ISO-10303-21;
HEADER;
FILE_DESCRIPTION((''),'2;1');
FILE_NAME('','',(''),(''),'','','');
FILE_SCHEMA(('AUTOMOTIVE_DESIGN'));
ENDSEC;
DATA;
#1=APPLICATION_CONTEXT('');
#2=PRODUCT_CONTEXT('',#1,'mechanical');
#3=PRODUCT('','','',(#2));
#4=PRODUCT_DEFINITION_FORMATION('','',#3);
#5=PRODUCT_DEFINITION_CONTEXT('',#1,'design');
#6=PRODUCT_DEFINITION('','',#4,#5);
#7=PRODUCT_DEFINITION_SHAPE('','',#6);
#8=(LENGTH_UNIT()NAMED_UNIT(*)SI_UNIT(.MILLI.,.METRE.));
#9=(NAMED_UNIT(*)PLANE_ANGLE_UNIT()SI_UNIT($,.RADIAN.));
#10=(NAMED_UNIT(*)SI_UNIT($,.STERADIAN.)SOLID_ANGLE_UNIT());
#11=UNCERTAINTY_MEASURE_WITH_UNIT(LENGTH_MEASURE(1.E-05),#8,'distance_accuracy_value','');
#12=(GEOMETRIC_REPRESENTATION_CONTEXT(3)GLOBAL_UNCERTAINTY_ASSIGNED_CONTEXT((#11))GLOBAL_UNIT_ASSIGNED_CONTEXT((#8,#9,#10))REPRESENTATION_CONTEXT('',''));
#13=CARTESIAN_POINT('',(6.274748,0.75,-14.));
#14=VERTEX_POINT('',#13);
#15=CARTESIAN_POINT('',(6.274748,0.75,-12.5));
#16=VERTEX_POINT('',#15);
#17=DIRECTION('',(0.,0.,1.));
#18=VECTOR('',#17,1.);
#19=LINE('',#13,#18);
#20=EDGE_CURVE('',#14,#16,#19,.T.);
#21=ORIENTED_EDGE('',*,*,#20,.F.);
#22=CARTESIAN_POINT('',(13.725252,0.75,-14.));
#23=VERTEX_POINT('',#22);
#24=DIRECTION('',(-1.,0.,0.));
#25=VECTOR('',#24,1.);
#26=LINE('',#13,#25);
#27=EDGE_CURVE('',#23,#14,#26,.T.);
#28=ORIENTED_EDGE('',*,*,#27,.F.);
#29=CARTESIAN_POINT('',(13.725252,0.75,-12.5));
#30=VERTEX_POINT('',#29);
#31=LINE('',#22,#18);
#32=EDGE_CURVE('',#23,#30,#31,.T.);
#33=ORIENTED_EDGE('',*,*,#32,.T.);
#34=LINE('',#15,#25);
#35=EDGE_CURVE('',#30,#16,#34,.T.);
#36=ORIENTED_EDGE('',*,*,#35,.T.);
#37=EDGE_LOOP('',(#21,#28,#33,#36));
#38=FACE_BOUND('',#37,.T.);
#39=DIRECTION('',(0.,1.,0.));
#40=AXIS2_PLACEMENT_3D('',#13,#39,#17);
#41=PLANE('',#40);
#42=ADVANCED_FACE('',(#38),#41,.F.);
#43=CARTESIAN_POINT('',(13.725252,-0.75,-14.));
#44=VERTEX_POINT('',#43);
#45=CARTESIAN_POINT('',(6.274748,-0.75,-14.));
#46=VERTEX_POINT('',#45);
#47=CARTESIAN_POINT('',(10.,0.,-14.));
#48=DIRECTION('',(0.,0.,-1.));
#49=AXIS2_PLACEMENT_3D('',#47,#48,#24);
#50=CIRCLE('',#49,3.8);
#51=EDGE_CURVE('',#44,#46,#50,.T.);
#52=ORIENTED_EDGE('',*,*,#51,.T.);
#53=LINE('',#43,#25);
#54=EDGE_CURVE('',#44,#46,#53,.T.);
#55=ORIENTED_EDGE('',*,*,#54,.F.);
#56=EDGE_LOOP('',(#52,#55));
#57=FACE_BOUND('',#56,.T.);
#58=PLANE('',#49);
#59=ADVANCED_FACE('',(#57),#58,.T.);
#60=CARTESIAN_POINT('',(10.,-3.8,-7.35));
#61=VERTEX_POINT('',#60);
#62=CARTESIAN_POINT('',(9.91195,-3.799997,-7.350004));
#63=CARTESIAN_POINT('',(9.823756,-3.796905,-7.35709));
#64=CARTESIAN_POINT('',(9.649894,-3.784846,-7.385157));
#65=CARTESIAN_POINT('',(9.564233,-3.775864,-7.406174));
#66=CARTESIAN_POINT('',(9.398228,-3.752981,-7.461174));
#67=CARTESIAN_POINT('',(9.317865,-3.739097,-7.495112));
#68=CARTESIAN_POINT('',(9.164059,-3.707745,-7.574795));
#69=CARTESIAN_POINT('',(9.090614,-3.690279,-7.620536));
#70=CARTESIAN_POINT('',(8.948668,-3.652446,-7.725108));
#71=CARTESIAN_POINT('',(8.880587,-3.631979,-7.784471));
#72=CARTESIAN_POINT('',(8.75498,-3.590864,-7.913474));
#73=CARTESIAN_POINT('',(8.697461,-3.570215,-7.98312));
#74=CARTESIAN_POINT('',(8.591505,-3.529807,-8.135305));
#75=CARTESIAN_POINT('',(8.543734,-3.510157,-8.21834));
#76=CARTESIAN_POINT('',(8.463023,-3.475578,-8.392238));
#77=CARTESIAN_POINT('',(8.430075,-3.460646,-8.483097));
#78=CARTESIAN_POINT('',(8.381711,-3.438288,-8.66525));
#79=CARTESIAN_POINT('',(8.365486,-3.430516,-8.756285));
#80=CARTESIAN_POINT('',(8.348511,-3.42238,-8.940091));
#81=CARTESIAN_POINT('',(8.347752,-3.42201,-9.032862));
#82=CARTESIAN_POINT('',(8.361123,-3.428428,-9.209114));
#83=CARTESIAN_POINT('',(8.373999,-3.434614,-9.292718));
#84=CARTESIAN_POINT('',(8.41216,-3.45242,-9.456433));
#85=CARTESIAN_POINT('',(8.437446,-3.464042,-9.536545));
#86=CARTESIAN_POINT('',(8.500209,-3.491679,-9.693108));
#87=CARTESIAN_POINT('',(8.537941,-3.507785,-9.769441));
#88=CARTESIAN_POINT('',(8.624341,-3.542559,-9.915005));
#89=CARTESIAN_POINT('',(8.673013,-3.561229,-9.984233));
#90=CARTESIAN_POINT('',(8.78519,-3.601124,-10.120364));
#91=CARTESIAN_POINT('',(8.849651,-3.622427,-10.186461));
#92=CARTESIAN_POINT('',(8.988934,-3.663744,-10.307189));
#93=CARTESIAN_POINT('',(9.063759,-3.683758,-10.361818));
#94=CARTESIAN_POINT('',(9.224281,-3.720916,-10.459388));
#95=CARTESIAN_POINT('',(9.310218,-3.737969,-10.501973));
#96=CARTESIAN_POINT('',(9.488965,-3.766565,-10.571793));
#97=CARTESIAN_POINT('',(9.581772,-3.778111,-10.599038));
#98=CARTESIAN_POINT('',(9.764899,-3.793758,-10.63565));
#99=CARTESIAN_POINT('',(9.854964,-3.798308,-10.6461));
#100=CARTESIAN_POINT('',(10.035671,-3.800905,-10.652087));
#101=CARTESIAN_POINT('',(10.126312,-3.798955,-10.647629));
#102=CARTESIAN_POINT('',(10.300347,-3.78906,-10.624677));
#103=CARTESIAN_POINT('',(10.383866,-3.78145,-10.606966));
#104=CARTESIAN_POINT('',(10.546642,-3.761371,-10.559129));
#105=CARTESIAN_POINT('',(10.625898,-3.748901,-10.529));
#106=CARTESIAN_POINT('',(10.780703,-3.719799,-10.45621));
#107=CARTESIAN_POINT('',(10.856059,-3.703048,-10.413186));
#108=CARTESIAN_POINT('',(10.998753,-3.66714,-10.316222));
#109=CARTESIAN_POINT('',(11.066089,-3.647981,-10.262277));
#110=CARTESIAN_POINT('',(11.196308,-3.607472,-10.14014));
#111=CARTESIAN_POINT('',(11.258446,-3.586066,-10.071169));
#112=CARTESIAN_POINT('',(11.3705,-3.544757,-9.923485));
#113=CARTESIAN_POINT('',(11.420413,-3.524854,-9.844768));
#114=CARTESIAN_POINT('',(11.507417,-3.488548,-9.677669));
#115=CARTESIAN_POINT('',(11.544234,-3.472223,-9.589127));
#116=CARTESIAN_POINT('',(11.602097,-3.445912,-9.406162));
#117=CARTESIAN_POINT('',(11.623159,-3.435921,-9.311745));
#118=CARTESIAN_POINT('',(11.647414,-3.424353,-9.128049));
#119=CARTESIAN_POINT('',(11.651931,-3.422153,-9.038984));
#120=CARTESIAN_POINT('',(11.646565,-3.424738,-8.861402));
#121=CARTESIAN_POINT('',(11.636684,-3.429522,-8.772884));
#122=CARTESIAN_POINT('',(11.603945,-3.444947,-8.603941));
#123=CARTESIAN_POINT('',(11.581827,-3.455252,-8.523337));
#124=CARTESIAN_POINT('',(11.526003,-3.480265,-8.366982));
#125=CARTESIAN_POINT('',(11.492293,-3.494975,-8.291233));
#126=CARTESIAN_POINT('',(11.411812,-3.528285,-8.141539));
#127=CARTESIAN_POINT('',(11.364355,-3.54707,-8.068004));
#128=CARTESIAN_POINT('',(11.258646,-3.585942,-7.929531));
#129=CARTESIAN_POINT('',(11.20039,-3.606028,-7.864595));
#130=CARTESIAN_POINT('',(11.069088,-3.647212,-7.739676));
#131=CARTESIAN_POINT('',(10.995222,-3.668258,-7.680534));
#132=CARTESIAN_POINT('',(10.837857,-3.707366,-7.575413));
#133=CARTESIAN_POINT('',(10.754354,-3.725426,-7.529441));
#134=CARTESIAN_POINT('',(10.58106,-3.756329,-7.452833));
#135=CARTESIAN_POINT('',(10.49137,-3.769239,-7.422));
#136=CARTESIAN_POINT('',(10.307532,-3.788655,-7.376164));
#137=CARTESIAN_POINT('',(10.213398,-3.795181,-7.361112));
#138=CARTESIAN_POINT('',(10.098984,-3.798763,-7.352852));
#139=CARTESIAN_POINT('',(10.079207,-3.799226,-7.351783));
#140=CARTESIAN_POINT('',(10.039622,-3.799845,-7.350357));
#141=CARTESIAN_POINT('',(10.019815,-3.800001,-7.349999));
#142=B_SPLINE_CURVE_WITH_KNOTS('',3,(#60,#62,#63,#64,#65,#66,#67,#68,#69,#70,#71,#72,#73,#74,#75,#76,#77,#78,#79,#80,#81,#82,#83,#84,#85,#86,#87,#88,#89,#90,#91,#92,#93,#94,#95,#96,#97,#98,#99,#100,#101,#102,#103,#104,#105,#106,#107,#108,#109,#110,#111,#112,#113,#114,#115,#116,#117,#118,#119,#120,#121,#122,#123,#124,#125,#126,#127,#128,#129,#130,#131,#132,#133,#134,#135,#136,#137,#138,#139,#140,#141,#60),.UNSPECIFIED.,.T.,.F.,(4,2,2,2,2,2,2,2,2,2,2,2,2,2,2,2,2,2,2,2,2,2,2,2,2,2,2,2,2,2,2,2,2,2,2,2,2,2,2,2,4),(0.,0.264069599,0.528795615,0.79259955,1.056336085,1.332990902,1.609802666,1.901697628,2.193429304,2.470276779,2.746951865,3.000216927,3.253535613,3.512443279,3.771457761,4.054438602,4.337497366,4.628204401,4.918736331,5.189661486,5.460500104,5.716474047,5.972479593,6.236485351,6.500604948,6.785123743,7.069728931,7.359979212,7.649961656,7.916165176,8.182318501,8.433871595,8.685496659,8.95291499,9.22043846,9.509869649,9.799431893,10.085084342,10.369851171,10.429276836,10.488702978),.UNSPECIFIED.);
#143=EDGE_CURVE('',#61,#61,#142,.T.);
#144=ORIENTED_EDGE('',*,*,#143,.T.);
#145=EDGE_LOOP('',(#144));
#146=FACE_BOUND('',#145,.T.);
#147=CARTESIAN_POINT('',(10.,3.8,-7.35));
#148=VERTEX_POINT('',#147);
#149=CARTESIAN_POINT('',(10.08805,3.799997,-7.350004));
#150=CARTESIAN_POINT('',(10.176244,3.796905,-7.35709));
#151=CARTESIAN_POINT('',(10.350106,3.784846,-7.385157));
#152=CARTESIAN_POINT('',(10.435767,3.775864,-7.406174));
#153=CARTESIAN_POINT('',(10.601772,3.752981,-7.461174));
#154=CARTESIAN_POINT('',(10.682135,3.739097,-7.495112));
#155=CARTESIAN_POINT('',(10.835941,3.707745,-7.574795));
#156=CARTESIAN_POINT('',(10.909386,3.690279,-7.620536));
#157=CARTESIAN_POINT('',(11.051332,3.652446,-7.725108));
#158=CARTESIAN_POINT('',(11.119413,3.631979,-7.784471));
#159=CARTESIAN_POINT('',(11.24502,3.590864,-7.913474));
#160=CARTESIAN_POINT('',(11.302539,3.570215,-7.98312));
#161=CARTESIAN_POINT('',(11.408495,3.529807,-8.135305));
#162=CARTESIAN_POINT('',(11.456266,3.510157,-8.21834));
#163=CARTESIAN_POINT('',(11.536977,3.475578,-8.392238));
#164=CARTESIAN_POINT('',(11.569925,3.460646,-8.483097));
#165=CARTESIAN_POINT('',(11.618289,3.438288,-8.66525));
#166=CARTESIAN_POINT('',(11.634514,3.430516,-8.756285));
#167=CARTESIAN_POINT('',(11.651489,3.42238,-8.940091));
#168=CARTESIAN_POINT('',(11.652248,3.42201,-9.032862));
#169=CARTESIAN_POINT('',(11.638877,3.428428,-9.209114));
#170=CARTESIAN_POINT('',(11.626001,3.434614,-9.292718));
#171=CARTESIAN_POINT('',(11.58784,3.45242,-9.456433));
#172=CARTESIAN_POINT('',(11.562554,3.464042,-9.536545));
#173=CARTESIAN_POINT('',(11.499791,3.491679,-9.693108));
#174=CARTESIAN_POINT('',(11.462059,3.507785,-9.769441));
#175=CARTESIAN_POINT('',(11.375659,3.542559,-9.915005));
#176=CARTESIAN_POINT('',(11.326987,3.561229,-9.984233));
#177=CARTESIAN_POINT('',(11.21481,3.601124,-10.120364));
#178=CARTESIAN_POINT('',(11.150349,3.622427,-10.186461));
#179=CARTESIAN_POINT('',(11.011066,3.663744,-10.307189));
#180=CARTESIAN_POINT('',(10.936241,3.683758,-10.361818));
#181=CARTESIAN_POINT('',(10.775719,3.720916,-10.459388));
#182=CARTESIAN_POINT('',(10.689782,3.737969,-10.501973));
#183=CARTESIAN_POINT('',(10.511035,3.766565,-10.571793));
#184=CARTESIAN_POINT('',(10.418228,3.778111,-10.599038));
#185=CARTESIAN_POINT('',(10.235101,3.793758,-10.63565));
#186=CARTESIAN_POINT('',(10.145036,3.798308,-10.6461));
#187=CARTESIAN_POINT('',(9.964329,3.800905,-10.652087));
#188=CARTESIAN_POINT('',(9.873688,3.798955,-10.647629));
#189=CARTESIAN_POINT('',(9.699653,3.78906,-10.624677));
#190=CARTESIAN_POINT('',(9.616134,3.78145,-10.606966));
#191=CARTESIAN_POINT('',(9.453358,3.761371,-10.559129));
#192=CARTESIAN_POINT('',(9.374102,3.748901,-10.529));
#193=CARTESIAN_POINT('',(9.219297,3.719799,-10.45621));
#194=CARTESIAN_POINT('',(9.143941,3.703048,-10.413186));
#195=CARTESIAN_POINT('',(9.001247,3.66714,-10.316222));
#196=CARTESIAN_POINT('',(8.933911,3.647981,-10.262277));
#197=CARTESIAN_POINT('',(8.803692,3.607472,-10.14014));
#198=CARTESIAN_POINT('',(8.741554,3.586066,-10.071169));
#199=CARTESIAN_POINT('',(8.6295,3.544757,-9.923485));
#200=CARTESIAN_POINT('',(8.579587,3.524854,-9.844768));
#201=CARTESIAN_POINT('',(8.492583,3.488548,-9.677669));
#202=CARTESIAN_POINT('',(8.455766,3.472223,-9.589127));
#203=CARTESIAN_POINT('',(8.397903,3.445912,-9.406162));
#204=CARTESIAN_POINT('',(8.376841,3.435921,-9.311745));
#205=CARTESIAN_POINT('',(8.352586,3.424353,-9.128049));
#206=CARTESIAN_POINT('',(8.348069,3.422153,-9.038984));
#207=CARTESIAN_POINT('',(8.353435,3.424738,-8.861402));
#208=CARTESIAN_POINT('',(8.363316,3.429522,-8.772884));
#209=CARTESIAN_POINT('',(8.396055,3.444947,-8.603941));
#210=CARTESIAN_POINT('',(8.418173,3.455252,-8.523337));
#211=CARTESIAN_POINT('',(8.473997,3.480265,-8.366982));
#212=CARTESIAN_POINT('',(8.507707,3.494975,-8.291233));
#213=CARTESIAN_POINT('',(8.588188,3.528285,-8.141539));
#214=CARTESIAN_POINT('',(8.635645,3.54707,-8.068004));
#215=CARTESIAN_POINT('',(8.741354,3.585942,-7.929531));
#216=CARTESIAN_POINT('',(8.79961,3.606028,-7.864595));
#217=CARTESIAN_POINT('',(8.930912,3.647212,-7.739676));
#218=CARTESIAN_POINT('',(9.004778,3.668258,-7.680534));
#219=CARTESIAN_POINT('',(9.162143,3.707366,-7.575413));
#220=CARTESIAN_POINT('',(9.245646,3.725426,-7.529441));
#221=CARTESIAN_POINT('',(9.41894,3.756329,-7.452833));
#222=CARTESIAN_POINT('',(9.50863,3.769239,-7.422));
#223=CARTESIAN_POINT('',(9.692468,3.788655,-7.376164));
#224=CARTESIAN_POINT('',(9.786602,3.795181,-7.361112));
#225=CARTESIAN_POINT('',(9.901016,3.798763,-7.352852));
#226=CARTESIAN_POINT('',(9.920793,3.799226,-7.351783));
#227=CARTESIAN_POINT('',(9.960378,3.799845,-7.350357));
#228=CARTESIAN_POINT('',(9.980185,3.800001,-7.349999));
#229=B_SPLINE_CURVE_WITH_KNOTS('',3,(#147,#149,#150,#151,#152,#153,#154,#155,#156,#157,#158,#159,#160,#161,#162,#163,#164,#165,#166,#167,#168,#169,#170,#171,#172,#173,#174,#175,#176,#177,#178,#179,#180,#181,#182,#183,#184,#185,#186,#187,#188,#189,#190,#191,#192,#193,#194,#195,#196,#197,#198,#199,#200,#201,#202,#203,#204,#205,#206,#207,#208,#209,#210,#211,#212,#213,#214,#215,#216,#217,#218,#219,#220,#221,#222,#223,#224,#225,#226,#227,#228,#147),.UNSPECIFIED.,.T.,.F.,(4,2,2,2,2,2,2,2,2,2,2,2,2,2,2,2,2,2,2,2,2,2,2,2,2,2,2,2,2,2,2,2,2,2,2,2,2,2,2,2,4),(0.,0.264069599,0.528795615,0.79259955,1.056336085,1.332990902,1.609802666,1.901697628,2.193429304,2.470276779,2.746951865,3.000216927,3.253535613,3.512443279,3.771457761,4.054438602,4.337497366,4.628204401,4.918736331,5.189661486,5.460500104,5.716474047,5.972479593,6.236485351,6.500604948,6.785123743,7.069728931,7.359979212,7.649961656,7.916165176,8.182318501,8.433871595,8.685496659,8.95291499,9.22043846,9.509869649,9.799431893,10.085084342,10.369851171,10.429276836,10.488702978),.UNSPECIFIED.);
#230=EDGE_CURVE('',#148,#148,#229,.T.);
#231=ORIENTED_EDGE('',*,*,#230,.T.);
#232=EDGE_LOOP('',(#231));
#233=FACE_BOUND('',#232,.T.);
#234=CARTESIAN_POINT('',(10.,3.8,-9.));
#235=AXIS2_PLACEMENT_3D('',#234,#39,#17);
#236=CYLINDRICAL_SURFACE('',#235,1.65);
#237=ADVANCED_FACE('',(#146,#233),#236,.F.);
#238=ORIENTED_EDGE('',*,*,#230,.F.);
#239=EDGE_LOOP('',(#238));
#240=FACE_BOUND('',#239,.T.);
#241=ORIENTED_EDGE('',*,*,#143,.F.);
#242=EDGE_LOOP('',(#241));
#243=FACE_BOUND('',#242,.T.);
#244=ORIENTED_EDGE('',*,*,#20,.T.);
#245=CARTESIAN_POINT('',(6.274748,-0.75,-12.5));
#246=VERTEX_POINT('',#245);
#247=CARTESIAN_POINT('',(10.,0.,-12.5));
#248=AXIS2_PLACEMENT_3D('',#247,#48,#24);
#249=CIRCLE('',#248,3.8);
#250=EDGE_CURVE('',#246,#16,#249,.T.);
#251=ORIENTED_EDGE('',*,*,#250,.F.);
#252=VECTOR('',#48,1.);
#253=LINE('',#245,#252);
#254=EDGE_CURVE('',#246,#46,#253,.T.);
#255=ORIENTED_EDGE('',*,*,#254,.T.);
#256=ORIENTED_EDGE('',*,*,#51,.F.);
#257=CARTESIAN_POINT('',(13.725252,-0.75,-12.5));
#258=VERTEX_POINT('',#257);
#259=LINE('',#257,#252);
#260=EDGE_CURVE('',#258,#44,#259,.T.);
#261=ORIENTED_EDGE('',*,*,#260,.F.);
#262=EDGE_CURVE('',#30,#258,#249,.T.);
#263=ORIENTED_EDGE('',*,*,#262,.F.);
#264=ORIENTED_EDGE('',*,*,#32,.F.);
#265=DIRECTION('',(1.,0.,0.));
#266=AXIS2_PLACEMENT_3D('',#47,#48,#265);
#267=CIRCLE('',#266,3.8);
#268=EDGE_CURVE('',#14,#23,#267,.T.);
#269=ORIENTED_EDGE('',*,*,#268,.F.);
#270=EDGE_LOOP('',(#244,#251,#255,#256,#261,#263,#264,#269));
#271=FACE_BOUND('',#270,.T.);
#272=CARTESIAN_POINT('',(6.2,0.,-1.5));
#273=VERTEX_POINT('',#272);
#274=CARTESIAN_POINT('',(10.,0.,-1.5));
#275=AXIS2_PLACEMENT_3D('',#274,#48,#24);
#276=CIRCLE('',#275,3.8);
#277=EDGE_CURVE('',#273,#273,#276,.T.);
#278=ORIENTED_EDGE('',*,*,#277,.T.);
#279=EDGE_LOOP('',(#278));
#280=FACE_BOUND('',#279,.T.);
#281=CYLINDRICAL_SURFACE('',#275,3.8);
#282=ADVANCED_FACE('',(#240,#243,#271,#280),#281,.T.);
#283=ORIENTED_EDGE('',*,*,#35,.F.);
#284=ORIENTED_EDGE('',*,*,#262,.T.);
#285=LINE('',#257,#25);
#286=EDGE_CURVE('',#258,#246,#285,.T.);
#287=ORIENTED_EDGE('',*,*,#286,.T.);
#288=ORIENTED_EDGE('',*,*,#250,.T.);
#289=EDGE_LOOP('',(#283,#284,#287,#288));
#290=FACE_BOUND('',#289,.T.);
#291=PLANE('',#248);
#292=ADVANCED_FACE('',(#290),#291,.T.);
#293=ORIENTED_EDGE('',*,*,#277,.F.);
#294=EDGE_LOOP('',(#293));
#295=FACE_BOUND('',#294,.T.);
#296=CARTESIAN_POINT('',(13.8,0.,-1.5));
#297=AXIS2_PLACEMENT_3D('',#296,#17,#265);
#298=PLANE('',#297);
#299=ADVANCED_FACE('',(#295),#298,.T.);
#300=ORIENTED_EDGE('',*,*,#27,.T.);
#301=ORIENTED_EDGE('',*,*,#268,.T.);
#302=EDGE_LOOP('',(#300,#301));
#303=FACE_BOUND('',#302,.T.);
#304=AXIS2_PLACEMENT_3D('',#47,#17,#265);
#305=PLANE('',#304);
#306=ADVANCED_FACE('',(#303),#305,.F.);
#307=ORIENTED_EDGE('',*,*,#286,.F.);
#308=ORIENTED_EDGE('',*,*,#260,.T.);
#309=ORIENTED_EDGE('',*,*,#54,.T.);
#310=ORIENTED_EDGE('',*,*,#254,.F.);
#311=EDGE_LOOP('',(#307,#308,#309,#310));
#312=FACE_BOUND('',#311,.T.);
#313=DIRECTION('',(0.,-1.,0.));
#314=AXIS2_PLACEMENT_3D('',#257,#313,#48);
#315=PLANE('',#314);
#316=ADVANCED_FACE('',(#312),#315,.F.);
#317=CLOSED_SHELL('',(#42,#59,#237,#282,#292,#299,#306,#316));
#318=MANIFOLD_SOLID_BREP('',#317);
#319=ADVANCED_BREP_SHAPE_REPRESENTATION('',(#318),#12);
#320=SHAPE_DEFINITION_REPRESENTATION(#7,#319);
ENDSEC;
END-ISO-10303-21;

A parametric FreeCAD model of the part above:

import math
import FreeCAD as App
import Part
import Sketcher
from FreeCAD import Vector

doc = App.newDocument("Part")
body = doc.addObject("PartDesign::Body", "Body")

sketch1 = body.newObject("Sketcher::SketchObject", "Sketch")
sketch1.AttachmentSupport = (doc.getObject("XZ_Plane"), [""])
sketch1.MapMode = "FlatFace"
sketch1.addGeometry([
    Part.LineSegment(Vector(10, -1.5, 0), Vector(10, -14, 0)),
    Part.LineSegment(Vector(10, -14, 0), Vector(13.8, -14, 0)),
    Part.LineSegment(Vector(13.8, -14, 0), Vector(13.8, -1.5, 0)),
    Part.LineSegment(Vector(13.8, -1.5, 0), Vector(10, -1.5, 0)),
], False)
sketch1.addGeometry(Part.LineSegment(Vector(10, -1.5, 0), Vector(10, -14, 0)), True)
sketch1.addConstraint([
    Sketcher.Constraint("Coincident", 0, 2, 1, 1),
    Sketcher.Constraint("Coincident", 1, 2, 2, 1),
    Sketcher.Constraint("Coincident", 2, 2, 3, 1),
    Sketcher.Constraint("Coincident", 3, 2, 0, 1),
    Sketcher.Constraint("Vertical", 0),
    Sketcher.Constraint("Horizontal", 1),
    Sketcher.Constraint("Vertical", 2),
    Sketcher.Constraint("Horizontal", 3),
    Sketcher.Constraint("Vertical", 4),
    Sketcher.Constraint("Coincident", 4, 1, 3, 2),
    Sketcher.Constraint("Horizontal", 1, 2, 4, 2),
    Sketcher.Constraint("DistanceX", 1, 1, 1, 2, 3.8),
    Sketcher.Constraint("DistanceY", 0, 2, 0, 1, 12.5),
    Sketcher.Constraint("DistanceX", -1, 1, 0, 2, 10.0),
    Sketcher.Constraint("DistanceY", 0, 2, -1, 1, 14.0),
])
revolution = body.newObject("PartDesign::Revolution", "Revolution")
revolution.Profile = sketch1
revolution.ReferenceAxis = (sketch1, ["Axis0"])
revolution.Angle = 360

sketch2 = body.newObject("Sketcher::SketchObject", "Sketch001")
sketch2.AttachmentSupport = (doc.getObject("XY_Plane"), [""])
sketch2.MapMode = "FlatFace"
sketch2.AttachmentOffset = App.Placement(Vector(0, 0, -12.5), App.Rotation())
sketch2.addGeometry([
    Part.LineSegment(Vector(13.7, -0.8, 0), Vector(6.3, -0.8, 0)),
    Part.ArcOfCircle(Part.Circle(Vector(10, 0, 0), Vector(0, 0, 1), 3.8), math.radians(-11), math.radians(191)),
], False)
sketch2.addConstraint([
    Sketcher.Constraint("Coincident", 0, 1, 1, 1),
    Sketcher.Constraint("Coincident", 1, 2, 0, 2),
    Sketcher.Constraint("Horizontal", 0),
    Sketcher.Constraint("PointOnObject", 1, 3, -1),
    Sketcher.Constraint("Radius", 1, 3.8),
    Sketcher.Constraint("DistanceX", -1, 1, 1, 3, 10.0),
    Sketcher.Constraint("DistanceY", 0, 1, -1, 1, 0.75),
])
pocket1 = body.newObject("PartDesign::Pocket", "Pocket")
pocket1.Profile = sketch2
pocket1.Length = 1.5

sketch3 = body.newObject("Sketcher::SketchObject", "Sketch002")
sketch3.AttachmentSupport = (doc.getObject("XY_Plane"), [""])
sketch3.MapMode = "FlatFace"
sketch3.AttachmentOffset = App.Placement(Vector(0, 0, -12.5), App.Rotation())
sketch3.addGeometry([
    Part.LineSegment(Vector(13.7, 0.8, 0), Vector(6.3, 0.8, 0)),
    Part.ArcOfCircle(Part.Circle(Vector(10, 0, 0), Vector(0, 0, 1), 3.8), math.radians(11), math.radians(169)),
], False)
sketch3.addConstraint([
    Sketcher.Constraint("Coincident", 0, 1, 1, 1),
    Sketcher.Constraint("Coincident", 1, 2, 0, 2),
    Sketcher.Constraint("Horizontal", 0),
    Sketcher.Constraint("PointOnObject", 1, 3, -1),
    Sketcher.Constraint("Radius", 1, 3.8),
    Sketcher.Constraint("DistanceX", -1, 1, 1, 3, 10.0),
    Sketcher.Constraint("DistanceY", -1, 1, 0, 1, 0.75),
])
pad1 = body.newObject("PartDesign::Pad", "Pad")
pad1.Profile = sketch3
pad1.Length = 1.5
pad1.Reversed = True

sketch4 = body.newObject("Sketcher::SketchObject", "Sketch003")
sketch4.AttachmentSupport = (doc.getObject("XZ_Plane"), [""])
sketch4.MapMode = "FlatFace"
sketch4.AttachmentOffset = App.Placement(Vector(0, 0, -3.8), App.Rotation())
sketch4.addGeometry(Part.Circle(Vector(10, -9, 0), Vector(0, 0, 1), 1.6), False)
sketch4.addConstraint([
    Sketcher.Constraint("Diameter", 0, 3.3),
    Sketcher.Constraint("DistanceX", -1, 1, 0, 3, 10.0),
    Sketcher.Constraint("DistanceY", 0, 3, -1, 1, 9.0),
])
doc.recompute()
hole = body.newObject("PartDesign::Hole", "Hole")
hole.Profile = sketch4
hole.ThreadType = "None"
hole.Diameter = 3.3
hole.DepthType = "ThroughAll"
hole.Reversed = True

doc.recompute()
